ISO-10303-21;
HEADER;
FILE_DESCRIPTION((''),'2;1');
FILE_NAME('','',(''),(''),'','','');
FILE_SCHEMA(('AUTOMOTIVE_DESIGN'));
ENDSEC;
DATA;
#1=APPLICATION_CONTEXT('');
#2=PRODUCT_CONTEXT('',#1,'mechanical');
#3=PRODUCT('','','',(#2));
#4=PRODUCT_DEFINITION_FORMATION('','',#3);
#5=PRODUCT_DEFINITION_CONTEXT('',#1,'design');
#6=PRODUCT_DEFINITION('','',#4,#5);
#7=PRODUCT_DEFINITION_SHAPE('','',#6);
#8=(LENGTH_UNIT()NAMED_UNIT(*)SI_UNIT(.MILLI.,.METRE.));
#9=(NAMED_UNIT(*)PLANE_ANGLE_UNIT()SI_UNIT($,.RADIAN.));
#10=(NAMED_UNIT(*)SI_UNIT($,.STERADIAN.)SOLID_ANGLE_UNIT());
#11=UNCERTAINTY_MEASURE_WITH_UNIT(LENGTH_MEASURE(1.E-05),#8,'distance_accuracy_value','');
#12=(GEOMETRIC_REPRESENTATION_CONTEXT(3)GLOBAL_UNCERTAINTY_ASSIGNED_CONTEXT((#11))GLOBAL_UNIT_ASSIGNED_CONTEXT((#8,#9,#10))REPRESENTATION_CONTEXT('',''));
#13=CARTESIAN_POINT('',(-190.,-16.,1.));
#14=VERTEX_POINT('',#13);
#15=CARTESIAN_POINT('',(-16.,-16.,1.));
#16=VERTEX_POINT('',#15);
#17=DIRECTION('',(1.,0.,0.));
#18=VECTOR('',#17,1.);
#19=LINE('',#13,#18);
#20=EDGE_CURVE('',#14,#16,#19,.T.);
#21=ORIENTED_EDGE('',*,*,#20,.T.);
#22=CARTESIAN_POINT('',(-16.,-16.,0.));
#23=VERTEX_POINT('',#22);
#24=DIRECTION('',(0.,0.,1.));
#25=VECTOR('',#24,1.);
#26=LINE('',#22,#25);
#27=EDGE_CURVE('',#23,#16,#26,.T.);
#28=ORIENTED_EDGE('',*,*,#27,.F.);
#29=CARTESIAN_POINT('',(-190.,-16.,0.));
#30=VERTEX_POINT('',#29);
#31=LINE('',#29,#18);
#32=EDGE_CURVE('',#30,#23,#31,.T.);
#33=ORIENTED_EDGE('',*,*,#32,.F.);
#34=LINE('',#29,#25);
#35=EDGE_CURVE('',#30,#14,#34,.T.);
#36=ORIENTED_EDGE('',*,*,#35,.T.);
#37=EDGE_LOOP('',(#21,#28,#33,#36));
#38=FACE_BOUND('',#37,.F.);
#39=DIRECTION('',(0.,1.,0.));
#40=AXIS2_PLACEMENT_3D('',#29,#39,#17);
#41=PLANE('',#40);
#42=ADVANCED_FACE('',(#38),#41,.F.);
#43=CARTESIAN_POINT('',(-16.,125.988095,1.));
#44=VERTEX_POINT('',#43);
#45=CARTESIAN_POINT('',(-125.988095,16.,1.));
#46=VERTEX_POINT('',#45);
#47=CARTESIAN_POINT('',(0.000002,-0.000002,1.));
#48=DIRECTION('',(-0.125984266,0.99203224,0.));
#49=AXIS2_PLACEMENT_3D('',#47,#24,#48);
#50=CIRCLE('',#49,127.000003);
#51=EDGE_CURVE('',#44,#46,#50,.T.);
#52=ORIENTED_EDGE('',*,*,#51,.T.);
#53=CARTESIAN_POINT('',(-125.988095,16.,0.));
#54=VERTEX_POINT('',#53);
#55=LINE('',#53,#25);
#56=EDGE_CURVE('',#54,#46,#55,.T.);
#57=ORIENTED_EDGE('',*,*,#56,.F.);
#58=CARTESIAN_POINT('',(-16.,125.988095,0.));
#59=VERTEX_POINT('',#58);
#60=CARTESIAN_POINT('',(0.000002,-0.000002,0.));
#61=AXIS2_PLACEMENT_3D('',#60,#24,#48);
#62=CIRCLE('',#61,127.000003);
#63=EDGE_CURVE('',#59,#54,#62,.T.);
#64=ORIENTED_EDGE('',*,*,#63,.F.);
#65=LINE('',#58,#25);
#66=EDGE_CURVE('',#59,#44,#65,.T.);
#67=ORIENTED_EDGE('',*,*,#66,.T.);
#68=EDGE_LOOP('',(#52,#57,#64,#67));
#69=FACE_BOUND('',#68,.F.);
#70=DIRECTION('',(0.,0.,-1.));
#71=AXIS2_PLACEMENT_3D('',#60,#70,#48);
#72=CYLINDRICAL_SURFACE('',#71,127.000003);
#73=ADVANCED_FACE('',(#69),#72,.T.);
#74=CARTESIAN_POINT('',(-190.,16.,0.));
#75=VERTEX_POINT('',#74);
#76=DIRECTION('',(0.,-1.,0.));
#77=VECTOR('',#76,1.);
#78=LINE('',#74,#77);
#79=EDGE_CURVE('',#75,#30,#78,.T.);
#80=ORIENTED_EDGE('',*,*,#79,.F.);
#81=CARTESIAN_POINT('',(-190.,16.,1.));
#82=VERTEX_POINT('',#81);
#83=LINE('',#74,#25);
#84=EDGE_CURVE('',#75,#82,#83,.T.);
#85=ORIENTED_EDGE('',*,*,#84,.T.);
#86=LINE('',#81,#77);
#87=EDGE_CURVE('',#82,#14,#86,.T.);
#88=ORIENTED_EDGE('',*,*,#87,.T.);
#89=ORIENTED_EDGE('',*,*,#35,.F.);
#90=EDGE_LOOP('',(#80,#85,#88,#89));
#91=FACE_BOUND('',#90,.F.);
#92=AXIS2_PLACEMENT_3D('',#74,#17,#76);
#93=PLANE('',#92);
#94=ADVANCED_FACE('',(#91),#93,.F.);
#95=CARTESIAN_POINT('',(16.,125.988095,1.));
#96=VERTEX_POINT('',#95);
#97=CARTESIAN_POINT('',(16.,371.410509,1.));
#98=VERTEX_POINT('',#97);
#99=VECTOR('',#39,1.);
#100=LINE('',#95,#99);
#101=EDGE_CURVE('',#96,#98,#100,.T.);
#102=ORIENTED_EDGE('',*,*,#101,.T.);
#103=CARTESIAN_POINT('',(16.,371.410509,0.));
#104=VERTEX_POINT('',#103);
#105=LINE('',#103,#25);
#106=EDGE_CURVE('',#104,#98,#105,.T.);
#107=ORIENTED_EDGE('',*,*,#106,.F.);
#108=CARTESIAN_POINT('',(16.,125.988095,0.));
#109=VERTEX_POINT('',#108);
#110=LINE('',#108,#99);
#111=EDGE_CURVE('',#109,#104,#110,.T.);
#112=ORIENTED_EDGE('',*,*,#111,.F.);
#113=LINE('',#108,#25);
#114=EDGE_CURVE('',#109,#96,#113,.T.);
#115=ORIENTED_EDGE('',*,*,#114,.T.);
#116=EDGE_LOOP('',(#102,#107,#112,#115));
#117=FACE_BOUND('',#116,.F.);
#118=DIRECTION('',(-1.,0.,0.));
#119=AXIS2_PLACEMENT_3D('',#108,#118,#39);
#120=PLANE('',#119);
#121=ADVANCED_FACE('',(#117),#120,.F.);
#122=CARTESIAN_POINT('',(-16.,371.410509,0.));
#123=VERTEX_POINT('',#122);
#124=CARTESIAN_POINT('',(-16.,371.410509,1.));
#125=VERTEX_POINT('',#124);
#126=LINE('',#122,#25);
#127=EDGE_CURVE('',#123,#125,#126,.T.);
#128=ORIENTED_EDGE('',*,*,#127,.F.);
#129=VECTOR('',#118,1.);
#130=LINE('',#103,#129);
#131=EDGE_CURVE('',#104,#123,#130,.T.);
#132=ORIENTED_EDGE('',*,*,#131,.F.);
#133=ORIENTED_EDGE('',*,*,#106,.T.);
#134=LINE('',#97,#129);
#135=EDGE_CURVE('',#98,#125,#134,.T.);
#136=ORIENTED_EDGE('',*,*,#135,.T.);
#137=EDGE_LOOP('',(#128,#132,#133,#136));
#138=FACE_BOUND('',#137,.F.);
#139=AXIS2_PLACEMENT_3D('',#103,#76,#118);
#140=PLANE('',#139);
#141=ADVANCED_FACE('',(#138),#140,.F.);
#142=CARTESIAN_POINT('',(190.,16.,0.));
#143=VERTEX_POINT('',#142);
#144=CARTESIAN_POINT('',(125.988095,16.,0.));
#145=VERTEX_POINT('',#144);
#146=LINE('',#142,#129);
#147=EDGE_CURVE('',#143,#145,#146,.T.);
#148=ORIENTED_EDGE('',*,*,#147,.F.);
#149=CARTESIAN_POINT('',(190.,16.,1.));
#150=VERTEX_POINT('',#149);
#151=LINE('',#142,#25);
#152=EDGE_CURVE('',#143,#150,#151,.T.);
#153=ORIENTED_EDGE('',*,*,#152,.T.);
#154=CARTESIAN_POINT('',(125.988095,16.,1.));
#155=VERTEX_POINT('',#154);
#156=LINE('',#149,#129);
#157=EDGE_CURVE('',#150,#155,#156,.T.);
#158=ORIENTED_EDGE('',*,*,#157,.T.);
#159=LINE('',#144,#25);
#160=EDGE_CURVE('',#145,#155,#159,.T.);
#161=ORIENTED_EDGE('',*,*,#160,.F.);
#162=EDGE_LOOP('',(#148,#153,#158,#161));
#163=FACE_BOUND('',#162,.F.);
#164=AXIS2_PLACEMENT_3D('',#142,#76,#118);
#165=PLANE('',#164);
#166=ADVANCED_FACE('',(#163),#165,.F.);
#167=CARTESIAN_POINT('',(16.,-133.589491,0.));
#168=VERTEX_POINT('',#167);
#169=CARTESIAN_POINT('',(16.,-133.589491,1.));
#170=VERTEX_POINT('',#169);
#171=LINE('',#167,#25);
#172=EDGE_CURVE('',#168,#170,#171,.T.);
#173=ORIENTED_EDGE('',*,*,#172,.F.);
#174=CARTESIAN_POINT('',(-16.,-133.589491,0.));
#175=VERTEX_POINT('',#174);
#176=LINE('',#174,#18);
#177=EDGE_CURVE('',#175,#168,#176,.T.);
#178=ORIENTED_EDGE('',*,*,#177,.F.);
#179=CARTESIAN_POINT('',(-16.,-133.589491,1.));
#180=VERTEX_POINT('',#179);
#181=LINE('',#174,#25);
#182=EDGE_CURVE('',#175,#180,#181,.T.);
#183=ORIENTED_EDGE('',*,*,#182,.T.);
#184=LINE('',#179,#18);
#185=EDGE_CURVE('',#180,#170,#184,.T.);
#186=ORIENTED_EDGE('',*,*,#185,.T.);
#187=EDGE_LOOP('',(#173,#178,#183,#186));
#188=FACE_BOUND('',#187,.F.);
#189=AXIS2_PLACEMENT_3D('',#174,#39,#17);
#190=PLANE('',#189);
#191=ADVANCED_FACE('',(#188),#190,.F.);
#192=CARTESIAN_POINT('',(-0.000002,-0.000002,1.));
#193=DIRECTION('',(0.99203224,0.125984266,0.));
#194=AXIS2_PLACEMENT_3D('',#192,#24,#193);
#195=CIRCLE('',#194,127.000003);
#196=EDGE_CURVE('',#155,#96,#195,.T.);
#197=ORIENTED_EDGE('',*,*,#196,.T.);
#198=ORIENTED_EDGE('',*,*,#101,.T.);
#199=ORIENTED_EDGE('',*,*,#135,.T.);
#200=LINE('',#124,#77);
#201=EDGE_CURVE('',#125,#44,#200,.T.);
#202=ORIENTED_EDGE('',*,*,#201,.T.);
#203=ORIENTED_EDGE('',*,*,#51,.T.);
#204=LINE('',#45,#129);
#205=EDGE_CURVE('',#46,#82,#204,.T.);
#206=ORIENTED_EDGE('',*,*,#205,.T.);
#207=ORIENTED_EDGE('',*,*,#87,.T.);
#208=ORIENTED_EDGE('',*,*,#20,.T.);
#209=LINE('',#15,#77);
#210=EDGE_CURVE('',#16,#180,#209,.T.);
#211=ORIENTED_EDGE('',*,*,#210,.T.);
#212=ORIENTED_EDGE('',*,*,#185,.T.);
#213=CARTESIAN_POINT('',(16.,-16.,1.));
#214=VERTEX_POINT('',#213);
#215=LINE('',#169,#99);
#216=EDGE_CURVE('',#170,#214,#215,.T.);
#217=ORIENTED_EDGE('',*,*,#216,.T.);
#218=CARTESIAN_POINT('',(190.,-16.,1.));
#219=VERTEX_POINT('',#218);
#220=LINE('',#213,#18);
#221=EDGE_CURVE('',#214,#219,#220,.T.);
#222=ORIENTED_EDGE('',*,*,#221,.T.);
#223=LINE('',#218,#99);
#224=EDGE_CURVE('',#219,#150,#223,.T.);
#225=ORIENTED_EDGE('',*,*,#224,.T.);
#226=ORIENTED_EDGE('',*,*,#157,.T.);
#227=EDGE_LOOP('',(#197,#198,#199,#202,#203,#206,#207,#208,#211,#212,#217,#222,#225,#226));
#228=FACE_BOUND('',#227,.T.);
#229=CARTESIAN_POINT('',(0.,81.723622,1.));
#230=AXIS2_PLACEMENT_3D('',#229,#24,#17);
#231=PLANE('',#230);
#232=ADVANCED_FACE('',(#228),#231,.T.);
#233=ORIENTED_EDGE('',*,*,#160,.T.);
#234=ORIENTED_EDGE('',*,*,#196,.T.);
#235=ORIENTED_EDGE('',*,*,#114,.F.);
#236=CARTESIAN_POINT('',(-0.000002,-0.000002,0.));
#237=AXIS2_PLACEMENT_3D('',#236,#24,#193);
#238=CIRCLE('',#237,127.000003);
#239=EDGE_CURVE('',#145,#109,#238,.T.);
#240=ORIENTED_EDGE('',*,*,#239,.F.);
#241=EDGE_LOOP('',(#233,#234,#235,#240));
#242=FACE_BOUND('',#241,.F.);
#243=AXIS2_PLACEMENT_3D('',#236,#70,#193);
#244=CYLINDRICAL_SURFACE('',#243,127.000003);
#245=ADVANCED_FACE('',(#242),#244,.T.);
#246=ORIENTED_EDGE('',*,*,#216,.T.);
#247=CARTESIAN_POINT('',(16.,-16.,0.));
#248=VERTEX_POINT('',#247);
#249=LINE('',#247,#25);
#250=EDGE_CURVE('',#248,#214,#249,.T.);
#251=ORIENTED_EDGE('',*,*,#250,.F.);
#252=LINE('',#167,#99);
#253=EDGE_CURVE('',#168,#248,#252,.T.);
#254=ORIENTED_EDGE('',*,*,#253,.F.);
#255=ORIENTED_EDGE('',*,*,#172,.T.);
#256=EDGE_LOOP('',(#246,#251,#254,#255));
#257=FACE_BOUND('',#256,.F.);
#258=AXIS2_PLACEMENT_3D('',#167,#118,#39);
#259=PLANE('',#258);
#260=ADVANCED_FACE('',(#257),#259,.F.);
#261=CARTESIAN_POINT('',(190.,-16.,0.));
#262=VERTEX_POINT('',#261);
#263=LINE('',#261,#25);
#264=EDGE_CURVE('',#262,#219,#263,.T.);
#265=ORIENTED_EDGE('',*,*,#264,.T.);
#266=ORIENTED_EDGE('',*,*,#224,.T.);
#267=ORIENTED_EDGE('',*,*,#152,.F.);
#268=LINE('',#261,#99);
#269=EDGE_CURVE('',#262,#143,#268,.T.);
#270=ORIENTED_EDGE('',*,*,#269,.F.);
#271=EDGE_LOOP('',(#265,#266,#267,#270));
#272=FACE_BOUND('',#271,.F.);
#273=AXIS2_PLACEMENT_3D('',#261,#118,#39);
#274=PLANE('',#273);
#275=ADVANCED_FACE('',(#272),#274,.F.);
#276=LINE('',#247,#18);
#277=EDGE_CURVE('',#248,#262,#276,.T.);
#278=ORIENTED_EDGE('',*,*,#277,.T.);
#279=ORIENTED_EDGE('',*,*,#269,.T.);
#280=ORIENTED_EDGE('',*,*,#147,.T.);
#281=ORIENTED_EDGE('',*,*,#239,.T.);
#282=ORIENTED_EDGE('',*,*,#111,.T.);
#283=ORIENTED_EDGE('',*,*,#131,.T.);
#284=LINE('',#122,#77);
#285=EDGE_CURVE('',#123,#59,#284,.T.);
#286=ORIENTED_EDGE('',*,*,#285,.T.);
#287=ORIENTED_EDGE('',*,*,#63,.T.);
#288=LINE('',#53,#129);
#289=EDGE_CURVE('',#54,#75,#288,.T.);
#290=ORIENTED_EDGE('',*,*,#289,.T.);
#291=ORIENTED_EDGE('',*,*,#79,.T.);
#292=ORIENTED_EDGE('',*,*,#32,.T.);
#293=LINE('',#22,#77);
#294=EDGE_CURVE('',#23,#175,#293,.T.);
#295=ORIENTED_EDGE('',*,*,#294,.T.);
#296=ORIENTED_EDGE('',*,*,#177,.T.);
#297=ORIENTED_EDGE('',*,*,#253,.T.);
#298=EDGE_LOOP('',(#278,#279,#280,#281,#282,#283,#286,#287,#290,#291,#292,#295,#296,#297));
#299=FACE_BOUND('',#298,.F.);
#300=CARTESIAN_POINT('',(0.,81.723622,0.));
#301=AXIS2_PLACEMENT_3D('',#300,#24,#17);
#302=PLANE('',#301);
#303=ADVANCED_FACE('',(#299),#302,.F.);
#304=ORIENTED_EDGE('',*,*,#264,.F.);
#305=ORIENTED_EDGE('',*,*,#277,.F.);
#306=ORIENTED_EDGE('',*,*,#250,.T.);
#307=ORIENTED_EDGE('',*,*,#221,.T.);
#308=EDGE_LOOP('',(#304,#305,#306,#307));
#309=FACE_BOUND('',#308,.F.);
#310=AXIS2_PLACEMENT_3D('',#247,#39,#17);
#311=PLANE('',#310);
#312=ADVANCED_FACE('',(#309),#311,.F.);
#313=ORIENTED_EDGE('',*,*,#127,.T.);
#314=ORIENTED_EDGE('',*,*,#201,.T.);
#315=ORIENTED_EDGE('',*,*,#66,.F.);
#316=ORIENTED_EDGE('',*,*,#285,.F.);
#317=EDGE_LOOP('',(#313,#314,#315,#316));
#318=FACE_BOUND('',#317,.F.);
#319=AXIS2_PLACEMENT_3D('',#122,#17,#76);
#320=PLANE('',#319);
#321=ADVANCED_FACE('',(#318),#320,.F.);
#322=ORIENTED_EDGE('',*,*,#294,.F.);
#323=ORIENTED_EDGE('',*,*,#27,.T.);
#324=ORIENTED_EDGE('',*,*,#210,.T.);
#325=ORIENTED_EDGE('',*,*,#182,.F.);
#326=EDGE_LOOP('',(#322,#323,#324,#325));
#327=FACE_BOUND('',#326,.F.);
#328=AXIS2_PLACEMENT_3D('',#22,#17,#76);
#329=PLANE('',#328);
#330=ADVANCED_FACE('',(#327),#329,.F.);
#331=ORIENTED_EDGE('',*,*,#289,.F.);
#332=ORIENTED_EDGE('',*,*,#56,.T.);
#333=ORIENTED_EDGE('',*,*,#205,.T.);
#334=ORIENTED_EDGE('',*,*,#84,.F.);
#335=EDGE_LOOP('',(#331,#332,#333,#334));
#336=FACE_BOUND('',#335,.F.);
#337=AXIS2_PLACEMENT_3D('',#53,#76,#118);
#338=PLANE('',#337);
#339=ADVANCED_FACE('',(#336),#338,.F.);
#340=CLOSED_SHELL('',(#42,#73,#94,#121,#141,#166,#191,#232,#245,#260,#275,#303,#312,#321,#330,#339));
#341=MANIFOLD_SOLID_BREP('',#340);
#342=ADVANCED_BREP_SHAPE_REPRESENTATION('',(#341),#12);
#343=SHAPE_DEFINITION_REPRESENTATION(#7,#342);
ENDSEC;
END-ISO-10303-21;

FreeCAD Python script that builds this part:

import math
import FreeCAD as App
import Part
import Sketcher
from FreeCAD import Vector
Q = App.Units.Quantity

doc = App.newDocument("Part")
body = doc.addObject("PartDesign::Body", "Body")

sketch1 = body.newObject("Sketcher::SketchObject", "Sketch")
sketch1.AttachmentSupport = (doc.getObject("XY_Plane"), [""])
sketch1.MapMode = "FlatFace"
sketch1.addGeometry([
    Part.ArcOfCircle(Part.Circle(Vector(0, 0, 0), Vector(0, 0, 1), 127), math.radians(97), math.radians(173)),
    Part.LineSegment(Vector(-126, 16, 0), Vector(-190, 16, 0)),
    Part.LineSegment(Vector(-190, 16, 0), Vector(-190, -16, 0)),
    Part.LineSegment(Vector(-190, -16, 0), Vector(-16, -16, 0)),
    Part.LineSegment(Vector(-16, -16, 0), Vector(-16, -134, 0)),
    Part.LineSegment(Vector(-16, -134, 0), Vector(16, -134, 0)),
    Part.LineSegment(Vector(16, -134, 0), Vector(16, -16, 0)),
    Part.LineSegment(Vector(16, -16, 0), Vector(190, -16, 0)),
    Part.LineSegment(Vector(190, -16, 0), Vector(190, 16, 0)),
    Part.LineSegment(Vector(190, 16, 0), Vector(126, 16, 0)),
    Part.ArcOfCircle(Part.Circle(Vector(0, 0, 0), Vector(0, 0, 1), 127), math.radians(7), math.radians(83)),
    Part.LineSegment(Vector(16, 126, 0), Vector(16, 371, 0)),
    Part.LineSegment(Vector(16, 371, 0), Vector(-16, 371, 0)),
    Part.LineSegment(Vector(-16, 371, 0), Vector(-16, 126, 0)),
], False)
sketch1.addConstraint([
    Sketcher.Constraint("Coincident", 0, 2, 1, 1),
    Sketcher.Constraint("Coincident", 1, 2, 2, 1),
    Sketcher.Constraint("Coincident", 2, 2, 3, 1),
    Sketcher.Constraint("Coincident", 3, 2, 4, 1),
    Sketcher.Constraint("Coincident", 4, 2, 5, 1),
    Sketcher.Constraint("Coincident", 5, 2, 6, 1),
    Sketcher.Constraint("Coincident", 6, 2, 7, 1),
    Sketcher.Constraint("Coincident", 7, 2, 8, 1),
    Sketcher.Constraint("Coincident", 8, 2, 9, 1),
    Sketcher.Constraint("Coincident", 9, 2, 10, 1),
    Sketcher.Constraint("Coincident", 10, 2, 11, 1),
    Sketcher.Constraint("Coincident", 11, 2, 12, 1),
    Sketcher.Constraint("Coincident", 12, 2, 13, 1),
    Sketcher.Constraint("Coincident", 13, 2, 0, 1),
    Sketcher.Constraint("Horizontal", 1),
    Sketcher.Constraint("Vertical", 2),
    Sketcher.Constraint("Horizontal", 3),
    Sketcher.Constraint("Vertical", 4),
    Sketcher.Constraint("Horizontal", 5),
    Sketcher.Constraint("Vertical", 6),
    Sketcher.Constraint("Horizontal", 7),
    Sketcher.Constraint("Vertical", 8),
    Sketcher.Constraint("Horizontal", 9),
    Sketcher.Constraint("Vertical", 11),
    Sketcher.Constraint("Horizontal", 12),
    Sketcher.Constraint("Vertical", 13),
    Sketcher.Constraint("Coincident", 0, 3, -1, 1),
    Sketcher.Constraint("Coincident", 10, 3, -1, 1),
    Sketcher.Constraint("Equal", 0, 10),
    Sketcher.Constraint("Symmetric", 1, 2, 7, 2, -1, 1),
    Sketcher.Constraint("Symmetric", 3, 2, 6, 2, -2),
    Sketcher.Constraint("Horizontal", 1, 2, 8, 2),
    Sketcher.Constraint("Horizontal", 10, 2, 13, 2),
    Sketcher.Constraint("Vertical", 6, 2, 10, 2),
    Sketcher.Constraint("Equal", 12, 2),
    Sketcher.Constraint("DistanceX", 3, 1, 3, 2, Q("174 mm")),
    Sketcher.Constraint("DistanceX", 5, 1, 5, 2, Q("32 mm")),
    Sketcher.Constraint("Radius", 0, Q("127.000003 mm")),
    Sketcher.Constraint("DistanceY", 4, 2, 4, 1, Q("117.589491 mm")),
    Sketcher.Constraint("DistanceY", 11, 1, 11, 2, Q("245.422414 mm")),
])
pad1 = body.newObject("PartDesign::Pad", "Pad")
pad1.Profile = sketch1
pad1.Length = 1

doc.recompute()
